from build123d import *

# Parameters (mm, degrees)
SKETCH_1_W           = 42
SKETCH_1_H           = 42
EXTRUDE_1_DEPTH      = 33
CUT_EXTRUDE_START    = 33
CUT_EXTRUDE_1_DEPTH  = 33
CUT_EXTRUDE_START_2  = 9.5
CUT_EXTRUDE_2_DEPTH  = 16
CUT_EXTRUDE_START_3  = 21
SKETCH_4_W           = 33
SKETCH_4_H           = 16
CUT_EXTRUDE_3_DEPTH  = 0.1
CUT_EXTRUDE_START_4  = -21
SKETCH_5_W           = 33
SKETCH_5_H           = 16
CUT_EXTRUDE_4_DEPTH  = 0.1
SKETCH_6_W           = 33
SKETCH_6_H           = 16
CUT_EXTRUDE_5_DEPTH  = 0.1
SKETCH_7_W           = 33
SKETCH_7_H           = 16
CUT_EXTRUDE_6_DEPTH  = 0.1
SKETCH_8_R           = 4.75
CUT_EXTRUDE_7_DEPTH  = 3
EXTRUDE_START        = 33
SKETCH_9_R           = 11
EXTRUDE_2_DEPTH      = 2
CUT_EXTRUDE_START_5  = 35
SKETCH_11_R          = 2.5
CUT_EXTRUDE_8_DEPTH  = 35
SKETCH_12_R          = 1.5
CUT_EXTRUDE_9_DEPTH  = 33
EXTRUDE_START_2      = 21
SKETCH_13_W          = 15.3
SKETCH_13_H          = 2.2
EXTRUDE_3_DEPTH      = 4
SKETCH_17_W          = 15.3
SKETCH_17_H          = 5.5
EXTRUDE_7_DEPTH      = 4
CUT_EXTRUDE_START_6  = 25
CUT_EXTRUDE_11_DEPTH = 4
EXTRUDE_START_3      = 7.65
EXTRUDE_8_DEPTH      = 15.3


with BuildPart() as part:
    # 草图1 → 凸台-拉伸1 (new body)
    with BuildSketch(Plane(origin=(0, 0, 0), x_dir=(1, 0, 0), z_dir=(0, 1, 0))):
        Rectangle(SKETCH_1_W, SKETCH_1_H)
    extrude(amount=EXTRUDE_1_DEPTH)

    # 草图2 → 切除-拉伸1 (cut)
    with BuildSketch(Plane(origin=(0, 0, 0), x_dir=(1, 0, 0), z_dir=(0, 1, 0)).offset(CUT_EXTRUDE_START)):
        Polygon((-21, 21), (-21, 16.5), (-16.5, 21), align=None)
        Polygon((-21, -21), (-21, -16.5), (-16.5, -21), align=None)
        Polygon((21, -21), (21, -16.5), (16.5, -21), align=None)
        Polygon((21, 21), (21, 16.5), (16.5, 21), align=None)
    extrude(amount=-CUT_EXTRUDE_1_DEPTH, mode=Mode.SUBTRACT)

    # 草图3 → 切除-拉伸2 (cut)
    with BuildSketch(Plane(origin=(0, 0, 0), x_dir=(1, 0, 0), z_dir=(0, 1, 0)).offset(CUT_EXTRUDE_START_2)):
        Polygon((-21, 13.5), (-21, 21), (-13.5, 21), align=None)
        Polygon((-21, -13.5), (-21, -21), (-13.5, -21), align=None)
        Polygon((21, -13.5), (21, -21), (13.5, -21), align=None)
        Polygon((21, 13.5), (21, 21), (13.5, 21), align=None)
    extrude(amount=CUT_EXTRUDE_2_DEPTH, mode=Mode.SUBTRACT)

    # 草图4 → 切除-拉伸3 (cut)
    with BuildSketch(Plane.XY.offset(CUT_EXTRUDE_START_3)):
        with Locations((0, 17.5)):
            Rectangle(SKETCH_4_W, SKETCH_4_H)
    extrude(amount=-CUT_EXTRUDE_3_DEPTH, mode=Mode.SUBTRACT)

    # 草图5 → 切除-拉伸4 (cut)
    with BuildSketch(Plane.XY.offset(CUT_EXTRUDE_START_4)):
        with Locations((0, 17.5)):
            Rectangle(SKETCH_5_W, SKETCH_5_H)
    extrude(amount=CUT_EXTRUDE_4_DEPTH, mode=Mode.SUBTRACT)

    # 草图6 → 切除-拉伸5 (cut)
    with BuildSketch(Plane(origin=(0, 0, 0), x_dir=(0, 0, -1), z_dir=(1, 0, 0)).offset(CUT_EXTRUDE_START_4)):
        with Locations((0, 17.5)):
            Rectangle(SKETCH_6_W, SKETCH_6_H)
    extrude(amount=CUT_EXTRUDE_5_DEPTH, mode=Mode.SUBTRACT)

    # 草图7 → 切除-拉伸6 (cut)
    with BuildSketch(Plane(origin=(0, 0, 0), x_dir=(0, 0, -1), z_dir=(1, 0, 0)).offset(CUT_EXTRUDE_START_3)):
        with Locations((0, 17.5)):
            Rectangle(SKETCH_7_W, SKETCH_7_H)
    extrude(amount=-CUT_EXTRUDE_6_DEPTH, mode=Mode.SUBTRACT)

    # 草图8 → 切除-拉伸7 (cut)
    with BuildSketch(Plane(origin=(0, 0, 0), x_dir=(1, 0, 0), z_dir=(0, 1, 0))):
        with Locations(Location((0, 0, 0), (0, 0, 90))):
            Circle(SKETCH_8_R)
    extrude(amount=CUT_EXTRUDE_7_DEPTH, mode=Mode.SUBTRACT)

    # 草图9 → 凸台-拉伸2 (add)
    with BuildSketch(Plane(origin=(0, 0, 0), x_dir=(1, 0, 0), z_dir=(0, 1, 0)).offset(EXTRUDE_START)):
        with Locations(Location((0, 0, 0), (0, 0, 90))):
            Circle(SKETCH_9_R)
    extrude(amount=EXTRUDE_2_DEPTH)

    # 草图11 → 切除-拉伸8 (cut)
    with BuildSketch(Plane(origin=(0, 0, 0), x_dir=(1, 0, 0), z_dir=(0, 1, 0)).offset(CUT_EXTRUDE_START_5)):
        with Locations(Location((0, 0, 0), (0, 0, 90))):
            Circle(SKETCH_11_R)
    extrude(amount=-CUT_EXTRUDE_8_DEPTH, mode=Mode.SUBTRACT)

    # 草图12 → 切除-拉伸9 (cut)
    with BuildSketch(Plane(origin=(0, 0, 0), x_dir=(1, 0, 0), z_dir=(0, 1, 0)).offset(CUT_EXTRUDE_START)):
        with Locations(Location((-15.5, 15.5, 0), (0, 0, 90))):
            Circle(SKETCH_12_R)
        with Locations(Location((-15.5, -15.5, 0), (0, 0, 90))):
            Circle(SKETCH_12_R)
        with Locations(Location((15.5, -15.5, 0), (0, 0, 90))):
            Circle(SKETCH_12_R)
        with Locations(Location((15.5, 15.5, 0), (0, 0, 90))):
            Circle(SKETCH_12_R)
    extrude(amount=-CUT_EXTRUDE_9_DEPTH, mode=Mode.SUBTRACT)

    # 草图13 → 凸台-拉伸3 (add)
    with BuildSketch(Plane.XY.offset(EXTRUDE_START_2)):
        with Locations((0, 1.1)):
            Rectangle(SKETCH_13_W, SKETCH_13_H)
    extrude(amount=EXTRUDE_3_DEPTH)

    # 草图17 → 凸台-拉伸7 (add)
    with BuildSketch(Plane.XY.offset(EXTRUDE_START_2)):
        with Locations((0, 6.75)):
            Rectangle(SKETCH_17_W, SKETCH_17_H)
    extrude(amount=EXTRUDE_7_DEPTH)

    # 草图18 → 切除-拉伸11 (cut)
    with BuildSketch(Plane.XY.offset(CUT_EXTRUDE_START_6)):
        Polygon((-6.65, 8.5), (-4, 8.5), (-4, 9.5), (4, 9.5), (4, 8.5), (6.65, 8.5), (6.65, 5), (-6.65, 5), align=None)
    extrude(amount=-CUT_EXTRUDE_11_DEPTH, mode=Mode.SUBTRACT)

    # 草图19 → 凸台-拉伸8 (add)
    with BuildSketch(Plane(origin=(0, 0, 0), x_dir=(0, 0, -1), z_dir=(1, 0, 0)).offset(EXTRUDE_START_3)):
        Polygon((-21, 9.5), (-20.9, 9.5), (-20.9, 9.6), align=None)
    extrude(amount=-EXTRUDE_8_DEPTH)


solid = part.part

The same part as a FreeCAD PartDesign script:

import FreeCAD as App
import Part
import Sketcher

doc = App.newDocument("Part")
body = doc.addObject("PartDesign::Body", "Body")

sketch1 = body.newObject("Sketcher::SketchObject", "Sketch")
sketch1.AttachmentSupport = (doc.getObject("XZ_Plane"), [""])
sketch1.MapMode = "FlatFace"
sketch1.addGeometry(Part.LineSegment(App.Vector(-21, -21, 0), App.Vector(-21, 21, 0)), False)
sketch1.addGeometry(Part.LineSegment(App.Vector(-21, 21, 0), App.Vector(21, 21, 0)), False)
sketch1.addGeometry(Part.LineSegment(App.Vector(21, 21, 0), App.Vector(21, -21, 0)), False)
sketch1.addGeometry(Part.LineSegment(App.Vector(21, -21, 0), App.Vector(-21, -21, 0)), False)
sketch1.addConstraint(Sketcher.Constraint("Coincident", 0, 2, 1, 1))
sketch1.addConstraint(Sketcher.Constraint("Coincident", 1, 2, 2, 1))
sketch1.addConstraint(Sketcher.Constraint("Coincident", 2, 2, 3, 1))
sketch1.addConstraint(Sketcher.Constraint("Coincident", 3, 2, 0, 1))
sketch1.addConstraint(Sketcher.Constraint("Vertical", 0))
sketch1.addConstraint(Sketcher.Constraint("Horizontal", 1))
sketch1.addConstraint(Sketcher.Constraint("Vertical", 2))
sketch1.addConstraint(Sketcher.Constraint("Horizontal", 3))
sketch1.addConstraint(Sketcher.Constraint("Symmetric", 0, 2, 2, 2, -1, 1))
sketch1.addConstraint(Sketcher.Constraint("Equal", 3, 0))
sketch1.addConstraint(Sketcher.Constraint("DistanceX", 1, 1, 1, 2, 42.0))
pad1 = body.newObject("PartDesign::Pad", "Pad")
pad1.Profile = sketch1
pad1.Length = 33
pad1.Reversed = True

sketch2 = body.newObject("Sketcher::SketchObject", "Sketch001")
sketch2.AttachmentSupport = (doc.getObject("XZ_Plane"), [""])
sketch2.MapMode = "FlatFace"
sketch2.AttachmentOffset = App.Placement(App.Vector(0, 0, -33), App.Rotation())
sketch2.addGeometry(Part.LineSegment(App.Vector(-21, -21, 0), App.Vector(-21, -16.5, 0)), False)
sketch2.addGeometry(Part.LineSegment(App.Vector(-21, -16.5, 0), App.Vector(-16.5, -21, 0)), False)
sketch2.addGeometry(Part.LineSegment(App.Vector(-16.5, -21, 0), App.Vector(-21, -21, 0)), False)
sketch2.addGeometry(Part.LineSegment(App.Vector(-21, 16.5, 0), App.Vector(-21, 21, 0)), False)
sketch2.addGeometry(Part.LineSegment(App.Vector(-21, 21, 0), App.Vector(-16.5, 21, 0)), False)
sketch2.addGeometry(Part.LineSegment(App.Vector(-16.5, 21, 0), App.Vector(-21, 16.5, 0)), False)
sketch2.addGeometry(Part.LineSegment(App.Vector(21, 21, 0), App.Vector(21, 16.5, 0)), False)
sketch2.addGeometry(Part.LineSegment(App.Vector(21, 16.5, 0), App.Vector(16.5, 21, 0)), False)
sketch2.addGeometry(Part.LineSegment(App.Vector(16.5, 21, 0), App.Vector(21, 21, 0)), False)
sketch2.addGeometry(Part.LineSegment(App.Vector(21, -16.5, 0), App.Vector(21, -21, 0)), False)
sketch2.addGeometry(Part.LineSegment(App.Vector(21, -21, 0), App.Vector(16.5, -21, 0)), False)
sketch2.addGeometry(Part.LineSegment(App.Vector(16.5, -21, 0), App.Vector(21, -16.5, 0)), False)
sketch2.addConstraint(Sketcher.Constraint("Coincident", 0, 2, 1, 1))
sketch2.addConstraint(Sketcher.Constraint("Coincident", 1, 2, 2, 1))
sketch2.addConstraint(Sketcher.Constraint("Coincident", 2, 2, 0, 1))
sketch2.addConstraint(Sketcher.Constraint("Coincident", 3, 2, 4, 1))
sketch2.addConstraint(Sketcher.Constraint("Coincident", 4, 2, 5, 1))
sketch2.addConstraint(Sketcher.Constraint("Coincident", 5, 2, 3, 1))
sketch2.addConstraint(Sketcher.Constraint("Coincident", 6, 2, 7, 1))
sketch2.addConstraint(Sketcher.Constraint("Coincident", 7, 2, 8, 1))
sketch2.addConstraint(Sketcher.Constraint("Coincident", 8, 2, 6, 1))
sketch2.addConstraint(Sketcher.Constraint("Coincident", 9, 2, 10, 1))
sketch2.addConstraint(Sketcher.Constraint("Coincident", 10, 2, 11, 1))
sketch2.addConstraint(Sketcher.Constraint("Coincident", 11, 2, 9, 1))
sketch2.addConstraint(Sketcher.Constraint("Vertical", 0))
sketch2.addConstraint(Sketcher.Constraint("Horizontal", 2))
sketch2.addConstraint(Sketcher.Constraint("Vertical", 3))
sketch2.addConstraint(Sketcher.Constraint("Horizontal", 4))
sketch2.addConstraint(Sketcher.Constraint("Vertical", 6))
sketch2.addConstraint(Sketcher.Constraint("Horizontal", 8))
sketch2.addConstraint(Sketcher.Constraint("Vertical", 9))
sketch2.addConstraint(Sketcher.Constraint("Horizontal", 10))
sketch2.addConstraint(Sketcher.Constraint("Symmetric", 0, 2, 6, 2, -1, 1))
sketch2.addConstraint(Sketcher.Constraint("Symmetric", 1, 2, 7, 2, -1, 1))
sketch2.addConstraint(Sketcher.Constraint("Symmetric", 3, 2, 9, 2, -1, 1))
sketch2.addConstraint(Sketcher.Constraint("Symmetric", 5, 2, 6, 2, -2))
sketch2.addConstraint(Sketcher.Constraint("Symmetric", 4, 2, 7, 2, -2))
sketch2.addConstraint(Sketcher.Constraint("Perpendicular", 1, 5))
sketch2.addConstraint(Sketcher.Constraint("Perpendicular", 7, 11))
sketch2.addConstraint(Sketcher.Constraint("Horizontal", 0, 2, 11, 2))
sketch2.addConstraint(Sketcher.Constraint("DistanceX", 2, 2, 2, 1, 4.5))
sketch2.addConstraint(Sketcher.Constraint("DistanceX", 0, 2, -1, 1, 21.0))
sketch2.addConstraint(Sketcher.Constraint("DistanceY", 1, 2, -1, 1, 21.0))
pocket1 = body.newObject("PartDesign::Pocket", "Pocket")
pocket1.Profile = sketch2
pocket1.Length = 33
pocket1.Reversed = True

sketch3 = body.newObject("Sketcher::SketchObject", "Sketch002")
sketch3.AttachmentSupport = (doc.getObject("XZ_Plane"), [""])
sketch3.MapMode = "FlatFace"
sketch3.AttachmentOffset = App.Placement(App.Vector(0, 0, -9.5), App.Rotation())
sketch3.addGeometry(Part.LineSegment(App.Vector(-21, -21, 0), App.Vector(-21, -14, 0)), False)
sketch3.addGeometry(Part.LineSegment(App.Vector(-21, -14, 0), App.Vector(-14, -21, 0)), False)
sketch3.addGeometry(Part.LineSegment(App.Vector(-14, -21, 0), App.Vector(-21, -21, 0)), False)
sketch3.addGeometry(Part.LineSegment(App.Vector(-21, 14, 0), App.Vector(-21, 21, 0)), False)
sketch3.addGeometry(Part.LineSegment(App.Vector(-21, 21, 0), App.Vector(-14, 21, 0)), False)
sketch3.addGeometry(Part.LineSegment(App.Vector(-14, 21, 0), App.Vector(-21, 14, 0)), False)
sketch3.addGeometry(Part.LineSegment(App.Vector(21, 21, 0), App.Vector(21, 14, 0)), False)
sketch3.addGeometry(Part.LineSegment(App.Vector(21, 14, 0), App.Vector(14, 21, 0)), False)
sketch3.addGeometry(Part.LineSegment(App.Vector(14, 21, 0), App.Vector(21, 21, 0)), False)
sketch3.addGeometry(Part.LineSegment(App.Vector(21, -14, 0), App.Vector(21, -21, 0)), False)
sketch3.addGeometry(Part.LineSegment(App.Vector(21, -21, 0), App.Vector(14, -21, 0)), False)
sketch3.addGeometry(Part.LineSegment(App.Vector(14, -21, 0), App.Vector(21, -14, 0)), False)
sketch3.addConstraint(Sketcher.Constraint("Coincident", 0, 2, 1, 1))
sketch3.addConstraint(Sketcher.Constraint("Coincident", 1, 2, 2, 1))
sketch3.addConstraint(Sketcher.Constraint("Coincident", 2, 2, 0, 1))
sketch3.addConstraint(Sketcher.Constraint("Coincident", 3, 2, 4, 1))
sketch3.addConstraint(Sketcher.Constraint("Coincident", 4, 2, 5, 1))
sketch3.addConstraint(Sketcher.Constraint("Coincident", 5, 2, 3, 1))
sketch3.addConstraint(Sketcher.Constraint("Coincident", 6, 2, 7, 1))
sketch3.addConstraint(Sketcher.Constraint("Coincident", 7, 2, 8, 1))
sketch3.addConstraint(Sketcher.Constraint("Coincident", 8, 2, 6, 1))
sketch3.addConstraint(Sketcher.Constraint("Coincident", 9, 2, 10, 1))
sketch3.addConstraint(Sketcher.Constraint("Coincident", 10, 2, 11, 1))
sketch3.addConstraint(Sketcher.Constraint("Coincident", 11, 2, 9, 1))
sketch3.addConstraint(Sketcher.Constraint("Vertical", 0))
sketch3.addConstraint(Sketcher.Constraint("Horizontal", 2))
sketch3.addConstraint(Sketcher.Constraint("Vertical", 3))
sketch3.addConstraint(Sketcher.Constraint("Horizontal", 4))
sketch3.addConstraint(Sketcher.Constraint("Vertical", 6))
sketch3.addConstraint(Sketcher.Constraint("Horizontal", 8))
sketch3.addConstraint(Sketcher.Constraint("Vertical", 9))
sketch3.addConstraint(Sketcher.Constraint("Horizontal", 10))
sketch3.addConstraint(Sketcher.Constraint("Symmetric", 0, 2, 6, 2, -1, 1))
sketch3.addConstraint(Sketcher.Constraint("Symmetric", 1, 2, 7, 2, -1, 1))
sketch3.addConstraint(Sketcher.Constraint("Symmetric", 3, 2, 9, 2, -1, 1))
sketch3.addConstraint(Sketcher.Constraint("Symmetric", 5, 2, 6, 2, -2))
sketch3.addConstraint(Sketcher.Constraint("Symmetric", 4, 2, 7, 2, -2))
sketch3.addConstraint(Sketcher.Constraint("Perpendicular", 1, 5))
sketch3.addConstraint(Sketcher.Constraint("Perpendicular", 7, 11))
sketch3.addConstraint(Sketcher.Constraint("Horizontal", 0, 2, 11, 2))
sketch3.addConstraint(Sketcher.Constraint("DistanceX", 2, 2, 2, 1, 7.5))
sketch3.addConstraint(Sketcher.Constraint("DistanceX", 0, 2, -1, 1, 21.0))
sketch3.addConstraint(Sketcher.Constraint("DistanceY", 1, 2, -1, 1, 21.0))
pocket2 = body.newObject("PartDesign::Pocket", "Pocket001")
pocket2.Profile = sketch3
pocket2.Length = 16

sketch4 = body.newObject("Sketcher::SketchObject", "Sketch003")
sketch4.AttachmentSupport = (doc.getObject("XY_Plane"), [""])
sketch4.MapMode = "FlatFace"
sketch4.AttachmentOffset = App.Placement(App.Vector(0, 0, 21), App.Rotation())
sketch4.addGeometry(Part.LineSegment(App.Vector(-16, 26, 0), App.Vector(-16, 10, 0)), False)
sketch4.addGeometry(Part.LineSegment(App.Vector(-16, 10, 0), App.Vector(16, 10, 0)), False)
sketch4.addGeometry(Part.LineSegment(App.Vector(16, 10, 0), App.Vector(16, 26, 0)), False)
sketch4.addGeometry(Part.LineSegment(App.Vector(16, 26, 0), App.Vector(-16, 26, 0)), False)
sketch4.addConstraint(Sketcher.Constraint("Coincident", 0, 2, 1, 1))
sketch4.addConstraint(Sketcher.Constraint("Coincident", 1, 2, 2, 1))
sketch4.addConstraint(Sketcher.Constraint("Coincident", 2, 2, 3, 1))
sketch4.addConstraint(Sketcher.Constraint("Coincident", 3, 2, 0, 1))
sketch4.addConstraint(Sketcher.Constraint("Vertical", 0))
sketch4.addConstraint(Sketcher.Constraint("Horizontal", 1))
sketch4.addConstraint(Sketcher.Constraint("Vertical", 2))
sketch4.addConstraint(Sketcher.Constraint("Horizontal", 3))
sketch4.addConstraint(Sketcher.Constraint("DistanceX", 1, 1, 1, 2, 33.0))
sketch4.addConstraint(Sketcher.Constraint("DistanceY", 0, 2, 0, 1, 16.0))
sketch4.addConstraint(Sketcher.Constraint("DistanceX", 0, 2, -1, 1, 16.5))
sketch4.addConstraint(Sketcher.Constraint("DistanceY", -1, 1, 0, 2, 9.5))
pocket3 = body.newObject("PartDesign::Pocket", "Pocket002")
pocket3.Profile = sketch4
pocket3.Length = 0.1

sketch5 = body.newObject("Sketcher::SketchObject", "Sketch004")
sketch5.AttachmentSupport = (doc.getObject("XY_Plane"), [""])
sketch5.MapMode = "FlatFace"
sketch5.AttachmentOffset = App.Placement(App.Vector(0, 0, -21), App.Rotation())
sketch5.addGeometry(Part.LineSegment(App.Vector(-16, 26, 0), App.Vector(-16, 10, 0)), False)
sketch5.addGeometry(Part.LineSegment(App.Vector(-16, 10, 0), App.Vector(16, 10, 0)), False)
sketch5.addGeometry(Part.LineSegment(App.Vector(16, 10, 0), App.Vector(16, 26, 0)), False)
sketch5.addGeometry(Part.LineSegment(App.Vector(16, 26, 0), App.Vector(-16, 26, 0)), False)
sketch5.addConstraint(Sketcher.Constraint("Coincident", 0, 2, 1, 1))
sketch5.addConstraint(Sketcher.Constraint("Coincident", 1, 2, 2, 1))
sketch5.addConstraint(Sketcher.Constraint("Coincident", 2, 2, 3, 1))
sketch5.addConstraint(Sketcher.Constraint("Coincident", 3, 2, 0, 1))
sketch5.addConstraint(Sketcher.Constraint("Vertical", 0))
sketch5.addConstraint(Sketcher.Constraint("Horizontal", 1))
sketch5.addConstraint(Sketcher.Constraint("Vertical", 2))
sketch5.addConstraint(Sketcher.Constraint("Horizontal", 3))
sketch5.addConstraint(Sketcher.Constraint("DistanceX", 1, 1, 1, 2, 33.0))
sketch5.addConstraint(Sketcher.Constraint("DistanceY", 0, 2, 0, 1, 16.0))
sketch5.addConstraint(Sketcher.Constraint("DistanceX", 0, 2, -1, 1, 16.5))
sketch5.addConstraint(Sketcher.Constraint("DistanceY", -1, 1, 0, 2, 9.5))
pocket4 = body.newObject("PartDesign::Pocket", "Pocket003")
pocket4.Profile = sketch5
pocket4.Length = 0.1
pocket4.Reversed = True

sketch6 = body.newObject("Sketcher::SketchObject", "Sketch005")
sketch6.AttachmentSupport = (doc.getObject("YZ_Plane"), [""])
sketch6.MapMode = "FlatFace"
sketch6.AttachmentOffset = App.Placement(App.Vector(0, 0, -21), App.Rotation())
sketch6.addGeometry(Part.LineSegment(App.Vector(26, 16, 0), App.Vector(10, 16, 0)), False)
sketch6.addGeometry(Part.LineSegment(App.Vector(10, 16, 0), App.Vector(10, -16, 0)), False)
sketch6.addGeometry(Part.LineSegment(App.Vector(10, -16, 0), App.Vector(26, -16, 0)), False)
sketch6.addGeometry(Part.LineSegment(App.Vector(26, -16, 0), App.Vector(26, 16, 0)), False)
sketch6.addConstraint(Sketcher.Constraint("Coincident", 0, 2, 1, 1))
sketch6.addConstraint(Sketcher.Constraint("Coincident", 1, 2, 2, 1))
sketch6.addConstraint(Sketcher.Constraint("Coincident", 2, 2, 3, 1))
sketch6.addConstraint(Sketcher.Constraint("Coincident", 3, 2, 0, 1))
sketch6.addConstraint(Sketcher.Constraint("Horizontal", 0))
sketch6.addConstraint(Sketcher.Constraint("Vertical", 1))
sketch6.addConstraint(Sketcher.Constraint("Horizontal", 2))
sketch6.addConstraint(Sketcher.Constraint("Vertical", 3))
sketch6.addConstraint(Sketcher.Constraint("DistanceX", 0, 2, 0, 1, 16.0))
sketch6.addConstraint(Sketcher.Constraint("DistanceY", 1, 2, 1, 1, 33.0))
sketch6.addConstraint(Sketcher.Constraint("DistanceX", -1, 1, 0, 2, 9.5))
sketch6.addConstraint(Sketcher.Constraint("DistanceY", -1, 1, 0, 2, 16.5))
pocket5 = body.newObject("PartDesign::Pocket", "Pocket004")
pocket5.Profile = sketch6
pocket5.Length = 0.1
pocket5.Reversed = True

sketch7 = body.newObject("Sketcher::SketchObject", "Sketch006")
sketch7.AttachmentSupport = (doc.getObject("YZ_Plane"), [""])
sketch7.MapMode = "FlatFace"
sketch7.AttachmentOffset = App.Placement(App.Vector(0, 0, 21), App.Rotation())
sketch7.addGeometry(Part.LineSegment(App.Vector(26, 16, 0), App.Vector(10, 16, 0)), False)
sketch7.addGeometry(Part.LineSegment(App.Vector(10, 16, 0), App.Vector(10, -16, 0)), False)
sketch7.addGeometry(Part.LineSegment(App.Vector(10, -16, 0), App.Vector(26, -16, 0)), False)
sketch7.addGeometry(Part.LineSegment(App.Vector(26, -16, 0), App.Vector(26, 16, 0)), False)
sketch7.addConstraint(Sketcher.Constraint("Coincident", 0, 2, 1, 1))
sketch7.addConstraint(Sketcher.Constraint("Coincident", 1, 2, 2, 1))
sketch7.addConstraint(Sketcher.Constraint("Coincident", 2, 2, 3, 1))
sketch7.addConstraint(Sketcher.Constraint("Coincident", 3, 2, 0, 1))
sketch7.addConstraint(Sketcher.Constraint("Horizontal", 0))
sketch7.addConstraint(Sketcher.Constraint("Vertical", 1))
sketch7.addConstraint(Sketcher.Constraint("Horizontal", 2))
sketch7.addConstraint(Sketcher.Constraint("Vertical", 3))
sketch7.addConstraint(Sketcher.Constraint("DistanceX", 0, 2, 0, 1, 16.0))
sketch7.addConstraint(Sketcher.Constraint("DistanceY", 1, 2, 1, 1, 33.0))
sketch7.addConstraint(Sketcher.Constraint("DistanceX", -1, 1, 0, 2, 9.5))
sketch7.addConstraint(Sketcher.Constraint("DistanceY", -1, 1, 0, 2, 16.5))
pocket6 = body.newObject("PartDesign::Pocket", "Pocket005")
pocket6.Profile = sketch7
pocket6.Length = 0.1

sketch8 = body.newObject("Sketcher::SketchObject", "Sketch007")
sketch8.AttachmentSupport = (doc.getObject("XZ_Plane"), [""])
sketch8.MapMode = "FlatFace"
sketch8.addGeometry(Part.Circle(App.Vector(0, 0, 0), App.Vector(0, 0, 1), 4.8), False)
sketch8.addConstraint(Sketcher.Constraint("Coincident", 0, 3, -1, 1))
sketch8.addConstraint(Sketcher.Constraint("Diameter", 0, 9.5))
pocket7 = body.newObject("PartDesign::Pocket", "Pocket006")
pocket7.Profile = sketch8
pocket7.Length = 3

sketch9 = body.newObject("Sketcher::SketchObject", "Sketch008")
sketch9.AttachmentSupport = (doc.getObject("XZ_Plane"), [""])
sketch9.MapMode = "FlatFace"
sketch9.AttachmentOffset = App.Placement(App.Vector(0, 0, -33), App.Rotation())
sketch9.addGeometry(Part.Circle(App.Vector(0, 0, 0), App.Vector(0, 0, 1), 11), False)
sketch9.addConstraint(Sketcher.Constraint("Coincident", 0, 3, -1, 1))
sketch9.addConstraint(Sketcher.Constraint("Diameter", 0, 22.0))
pad2 = body.newObject("PartDesign::Pad", "Pad001")
pad2.Profile = sketch9
pad2.Length = 2
pad2.Reversed = True

sketch10 = body.newObject("Sketcher::SketchObject", "Sketch009")
sketch10.AttachmentSupport = (doc.getObject("XZ_Plane"), [""])
sketch10.MapMode = "FlatFace"
sketch10.AttachmentOffset = App.Placement(App.Vector(0, 0, -35), App.Rotation())
sketch10.addGeometry(Part.Circle(App.Vector(0, 0, 0), App.Vector(0, 0, 1), 2.5), False)
sketch10.addConstraint(Sketcher.Constraint("Coincident", 0, 3, -1, 1))
sketch10.addConstraint(Sketcher.Constraint("Diameter", 0, 5.0))
pocket8 = body.newObject("PartDesign::Pocket", "Pocket007")
pocket8.Profile = sketch10
pocket8.Length = 35
pocket8.Reversed = True

sketch11 = body.newObject("Sketcher::SketchObject", "Sketch010")
sketch11.AttachmentSupport = (doc.getObject("XZ_Plane"), [""])
sketch11.MapMode = "FlatFace"
sketch11.AttachmentOffset = App.Placement(App.Vector(0, 0, -33), App.Rotation())
sketch11.addGeometry(Part.Circle(App.Vector(-15.5, -15.5, 0), App.Vector(0, 0, 1), 1.5), False)
sketch11.addGeometry(Part.Circle(App.Vector(-15.5, 15.5, 0), App.Vector(0, 0, 1), 1.5), False)
sketch11.addGeometry(Part.Circle(App.Vector(15.5, 15.5, 0), App.Vector(0, 0, 1), 1.5), False)
sketch11.addGeometry(Part.Circle(App.Vector(15.5, -15.5, 0), App.Vector(0, 0, 1), 1.5), False)
sketch11.addConstraint(Sketcher.Constraint("Equal", 0, 1))
sketch11.addConstraint(Sketcher.Constraint("Equal", 1, 2))
sketch11.addConstraint(Sketcher.Constraint("Equal", 2, 3))
sketch11.addConstraint(Sketcher.Constraint("Symmetric", 0, 3, 2, 3, -1, 1))
sketch11.addConstraint(Sketcher.Constraint("Symmetric", 1, 3, 3, 3, -1, 1))
sketch11.addConstraint(Sketcher.Constraint("Symmetric", 1, 3, 2, 3, -2))
sketch11.addConstraint(Sketcher.Constraint("Diameter", 0, 3.0))
sketch11.addConstraint(Sketcher.Constraint("DistanceY", 0, 3, 1, 3, 31.0))
sketch11.addConstraint(Sketcher.Constraint("DistanceX", 1, 3, 2, 3, 31.0))
pocket9 = body.newObject("PartDesign::Pocket", "Pocket008")
pocket9.Profile = sketch11
pocket9.Length = 33
pocket9.Reversed = True

sketch12 = body.newObject("Sketcher::SketchObject", "Sketch011")
sketch12.AttachmentSupport = (doc.getObject("XY_Plane"), [""])
sketch12.MapMode = "FlatFace"
sketch12.AttachmentOffset = App.Placement(App.Vector(0, 0, 21), App.Rotation())
sketch12.addGeometry(Part.LineSegment(App.Vector(-7.7, 2.2, 0), App.Vector(-7.7, 0, 0)), False)
sketch12.addGeometry(Part.LineSegment(App.Vector(-7.7, 0, 0), App.Vector(7.7, 0, 0)), False)
sketch12.addGeometry(Part.LineSegment(App.Vector(7.7, 0, 0), App.Vector(7.7, 2.2, 0)), False)
sketch12.addGeometry(Part.LineSegment(App.Vector(7.7, 2.2, 0), App.Vector(-7.7, 2.2, 0)), False)
sketch12.addConstraint(Sketcher.Constraint("Coincident", 0, 2, 1, 1))
sketch12.addConstraint(Sketcher.Constraint("Coincident", 1, 2, 2, 1))
sketch12.addConstraint(Sketcher.Constraint("Coincident", 2, 2, 3, 1))
sketch12.addConstraint(Sketcher.Constraint("Coincident", 3, 2, 0, 1))
sketch12.addConstraint(Sketcher.Constraint("Vertical", 0))
sketch12.addConstraint(Sketcher.Constraint("Horizontal", 1))
sketch12.addConstraint(Sketcher.Constraint("Vertical", 2))
sketch12.addConstraint(Sketcher.Constraint("Horizontal", 3))
sketch12.addConstraint(Sketcher.Constraint("Symmetric", 0, 2, 1, 2, -1, 1))
sketch12.addConstraint(Sketcher.Constraint("DistanceX", 1, 1, 1, 2, 15.3))
sketch12.addConstraint(Sketcher.Constraint("DistanceY", 0, 2, 0, 1, 2.2))
pad3 = body.newObject("PartDesign::Pad", "Pad002")
pad3.Profile = sketch12
pad3.Length = 4

sketch13 = body.newObject("Sketcher::SketchObject", "Sketch012")
sketch13.AttachmentSupport = (doc.getObject("XY_Plane"), [""])
sketch13.MapMode = "FlatFace"
sketch13.AttachmentOffset = App.Placement(App.Vector(0, 0, 21), App.Rotation())
sketch13.addGeometry(Part.LineSegment(App.Vector(-8, 10, 0), App.Vector(-8, 4, 0)), False)
sketch13.addGeometry(Part.LineSegment(App.Vector(-8, 4, 0), App.Vector(8, 4, 0)), False)
sketch13.addGeometry(Part.LineSegment(App.Vector(8, 4, 0), App.Vector(8, 10, 0)), False)
sketch13.addGeometry(Part.LineSegment(App.Vector(8, 10, 0), App.Vector(-8, 10, 0)), False)
sketch13.addConstraint(Sketcher.Constraint("Coincident", 0, 2, 1, 1))
sketch13.addConstraint(Sketcher.Constraint("Coincident", 1, 2, 2, 1))
sketch13.addConstraint(Sketcher.Constraint("Coincident", 2, 2, 3, 1))
sketch13.addConstraint(Sketcher.Constraint("Coincident", 3, 2, 0, 1))
sketch13.addConstraint(Sketcher.Constraint("Vertical", 0))
sketch13.addConstraint(Sketcher.Constraint("Horizontal", 1))
sketch13.addConstraint(Sketcher.Constraint("Vertical", 2))
sketch13.addConstraint(Sketcher.Constraint("Horizontal", 3))
sketch13.addConstraint(Sketcher.Constraint("DistanceX", 1, 1, 1, 2, 15.3))
sketch13.addConstraint(Sketcher.Constraint("DistanceY", 0, 2, 0, 1, 5.5))
sketch13.addConstraint(Sketcher.Constraint("DistanceY", -1, 1, 0, 2, 4.0))
sketch13.addConstraint(Sketcher.Constraint("DistanceX", 0, 2, -1, 1, 7.65))
pad4 = body.newObject("PartDesign::Pad", "Pad003")
pad4.Profile = sketch13
pad4.Length = 4

sketch14 = body.newObject("Sketcher::SketchObject", "Sketch013")
sketch14.AttachmentSupport = (doc.getObject("XY_Plane"), [""])
sketch14.MapMode = "FlatFace"
sketch14.AttachmentOffset = App.Placement(App.Vector(0, 0, 25), App.Rotation())
sketch14.addGeometry(Part.LineSegment(App.Vector(-4, 8.5, 0), App.Vector(-6.7, 8.5, 0)), False)
sketch14.addGeometry(Part.LineSegment(App.Vector(-6.7, 8.5, 0), App.Vector(-6.7, 5, 0)), False)
sketch14.addGeometry(Part.LineSegment(App.Vector(-6.7, 5, 0), App.Vector(6.7, 5, 0)), False)
sketch14.addGeometry(Part.LineSegment(App.Vector(6.7, 5, 0), App.Vector(6.7, 8.5, 0)), False)
sketch14.addGeometry(Part.LineSegment(App.Vector(6.7, 8.5, 0), App.Vector(4, 8.5, 0)), False)
sketch14.addGeometry(Part.LineSegment(App.Vector(4, 8.5, 0), App.Vector(4, 9.5, 0)), False)
sketch14.addGeometry(Part.LineSegment(App.Vector(4, 9.5, 0), App.Vector(-4, 9.5, 0)), False)
sketch14.addGeometry(Part.LineSegment(App.Vector(-4, 9.5, 0), App.Vector(-4, 8.5, 0)), False)
sketch14.addConstraint(Sketcher.Constraint("Coincident", 0, 2, 1, 1))
sketch14.addConstraint(Sketcher.Constraint("Coincident", 1, 2, 2, 1))
sketch14.addConstraint(Sketcher.Constraint("Coincident", 2, 2, 3, 1))
sketch14.addConstraint(Sketcher.Constraint("Coincident", 3, 2, 4, 1))
sketch14.addConstraint(Sketcher.Constraint("Coincident", 4, 2, 5, 1))
sketch14.addConstraint(Sketcher.Constraint("Coincident", 5, 2, 6, 1))
sketch14.addConstraint(Sketcher.Constraint("Coincident", 6, 2, 7, 1))
sketch14.addConstraint(Sketcher.Constraint("Coincident", 7, 2, 0, 1))
sketch14.addConstraint(Sketcher.Constraint("Horizontal", 0))
sketch14.addConstraint(Sketcher.Constraint("Vertical", 1))
sketch14.addConstraint(Sketcher.Constraint("Horizontal", 2))
sketch14.addConstraint(Sketcher.Constraint("Vertical", 3))
sketch14.addConstraint(Sketcher.Constraint("Horizontal", 4))
sketch14.addConstraint(Sketcher.Constraint("Vertical", 5))
sketch14.addConstraint(Sketcher.Constraint("Horizontal", 6))
sketch14.addConstraint(Sketcher.Constraint("Vertical", 7))
sketch14.addConstraint(Sketcher.Constraint("Symmetric", 0, 2, 3, 2, -2))
sketch14.addConstraint(Sketcher.Constraint("Equal", 0, 4))
sketch14.addConstraint(Sketcher.Constraint("DistanceX", 6, 2, 6, 1, 8.0))
sketch14.addConstraint(Sketcher.Constraint("DistanceY", 5, 1, 5, 2, 1.0))
sketch14.addConstraint(Sketcher.Constraint("DistanceX", 2, 1, 2, 2, 13.3))
sketch14.addConstraint(Sketcher.Constraint("DistanceY", 1, 2, 1, 1, 3.5))
sketch14.addConstraint(Sketcher.Constraint("DistanceY", -1, 1, 1, 2, 5.0))
pocket10 = body.newObject("PartDesign::Pocket", "Pocket009")
pocket10.Profile = sketch14
pocket10.Length = 4

sketch15 = body.newObject("Sketcher::SketchObject", "Sketch014")
sketch15.AttachmentSupport = (doc.getObject("YZ_Plane"), [""])
sketch15.MapMode = "FlatFace"
sketch15.AttachmentOffset = App.Placement(App.Vector(0, 0, 7.65), App.Rotation())
sketch15.addGeometry(Part.LineSegment(App.Vector(9.5, 21, 0), App.Vector(9.5, 20.9, 0)), False)
sketch15.addGeometry(Part.LineSegment(App.Vector(9.5, 20.9, 0), App.Vector(9.6, 20.9, 0)), False)
sketch15.addGeometry(Part.LineSegment(App.Vector(9.6, 20.9, 0), App.Vector(9.5, 21, 0)), False)
sketch15.addConstraint(Sketcher.Constraint("Coincident", 0, 2, 1, 1))
sketch15.addConstraint(Sketcher.Constraint("Coincident", 1, 2, 2, 1))
sketch15.addConstraint(Sketcher.Constraint("Coincident", 2, 2, 0, 1))
sketch15.addConstraint(Sketcher.Constraint("Vertical", 0))
sketch15.addConstraint(Sketcher.Constraint("Horizontal", 1))
sketch15.addConstraint(Sketcher.Constraint("Equal", 1, 0))
sketch15.addConstraint(Sketcher.Constraint("DistanceX", 1, 1, 1, 2, 0.1))
sketch15.addConstraint(Sketcher.Constraint("DistanceY", -1, 1, 2, 2, 21.0))
sketch15.addConstraint(Sketcher.Constraint("DistanceX", -1, 1, 0, 2, 9.5))
pad5 = body.newObject("PartDesign::Pad", "Pad004")
pad5.Profile = sketch15
pad5.Length = 15.3
pad5.Reversed = True

doc.recompute()
